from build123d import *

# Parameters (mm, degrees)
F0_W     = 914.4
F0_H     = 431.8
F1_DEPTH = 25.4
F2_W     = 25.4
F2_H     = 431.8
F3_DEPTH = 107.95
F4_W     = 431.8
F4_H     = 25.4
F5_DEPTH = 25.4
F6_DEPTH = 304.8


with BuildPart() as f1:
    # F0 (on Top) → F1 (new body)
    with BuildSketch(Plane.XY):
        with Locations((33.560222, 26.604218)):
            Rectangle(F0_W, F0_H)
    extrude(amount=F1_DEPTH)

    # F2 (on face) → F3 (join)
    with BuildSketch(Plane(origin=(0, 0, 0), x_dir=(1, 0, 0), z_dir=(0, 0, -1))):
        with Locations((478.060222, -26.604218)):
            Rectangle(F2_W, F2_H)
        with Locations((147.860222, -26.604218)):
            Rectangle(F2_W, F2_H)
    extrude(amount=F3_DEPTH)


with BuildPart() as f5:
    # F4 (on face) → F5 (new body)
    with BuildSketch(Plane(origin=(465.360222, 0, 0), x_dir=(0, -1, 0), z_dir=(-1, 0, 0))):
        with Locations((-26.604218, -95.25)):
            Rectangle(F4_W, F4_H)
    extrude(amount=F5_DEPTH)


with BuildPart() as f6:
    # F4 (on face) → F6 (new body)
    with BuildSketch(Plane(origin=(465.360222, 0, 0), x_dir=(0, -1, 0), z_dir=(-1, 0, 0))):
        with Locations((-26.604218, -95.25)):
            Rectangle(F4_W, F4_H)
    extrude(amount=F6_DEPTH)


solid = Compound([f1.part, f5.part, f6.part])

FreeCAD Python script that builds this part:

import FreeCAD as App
import Part
import Sketcher
Q = App.Units.Quantity


def add_polygon(sketch, points):
    """Adds a closed chain of lines whose ends are joined by coincident constraints."""
    first, n = sketch.GeometryCount, len(points)
    for a, b in zip(points, points[1:] + points[:1]):
        sketch.addGeometry(Part.LineSegment(App.Vector(*a, 0), App.Vector(*b, 0)), False)
    for i in range(n):
        sketch.addConstraint(Sketcher.Constraint("Coincident", first + i, 2, first + (i + 1) % n, 1))

doc = App.newDocument("Part")
body = doc.addObject("PartDesign::Body", "Body")

sketch1 = body.newObject("Sketcher::SketchObject", "Sketch")
sketch1.AttachmentSupport = (doc.getObject("XY_Plane"), [""])
sketch1.MapMode = "FlatFace"
add_polygon(sketch1, [(-423.639778, 242.504218), (-423.639778, -189.295782), (490.760222, -189.295782), (490.760222, 242.504218)])
sketch1.addConstraint(Sketcher.Constraint("Vertical", 0))
sketch1.addConstraint(Sketcher.Constraint("Horizontal", 1))
sketch1.addConstraint(Sketcher.Constraint("Vertical", 2))
sketch1.addConstraint(Sketcher.Constraint("Horizontal", 3))
sketch1.addConstraint(Sketcher.Constraint("DistanceX", 1, 1, 1, 2, Q("36 in")))
sketch1.addConstraint(Sketcher.Constraint("DistanceY", 0, 2, 0, 1, Q("17 in")))
sketch1.addConstraint(Sketcher.Constraint("DistanceX", 0, 2, -1, 1, 423.639778))
sketch1.addConstraint(Sketcher.Constraint("DistanceY", 0, 2, -1, 1, 189.295782))
pad1 = body.newObject("PartDesign::Pad", "Pad")
pad1.Profile = sketch1
pad1.Length = Q("1 in")

sketch2 = body.newObject("Sketcher::SketchObject", "Sketch001")
sketch2.AttachmentSupport = (doc.getObject("XY_Plane"), [""])
sketch2.MapMode = "FlatFace"
add_polygon(sketch2, [(465.360222, -189.295782), (465.360222, 242.504218), (490.760222, 242.504218), (490.760222, -189.295782)])
add_polygon(sketch2, [(135.160222, -189.295782), (135.160222, 242.504218), (160.560222, 242.504218), (160.560222, -189.295782)])
sketch2.addConstraint(Sketcher.Constraint("Vertical", 0))
sketch2.addConstraint(Sketcher.Constraint("Horizontal", 1))
sketch2.addConstraint(Sketcher.Constraint("Vertical", 2))
sketch2.addConstraint(Sketcher.Constraint("Horizontal", 3))
sketch2.addConstraint(Sketcher.Constraint("Vertical", 4))
sketch2.addConstraint(Sketcher.Constraint("Horizontal", 5))
sketch2.addConstraint(Sketcher.Constraint("Vertical", 6))
sketch2.addConstraint(Sketcher.Constraint("Horizontal", 7))
sketch2.addConstraint(Sketcher.Constraint("Horizontal", 1, 2, 4, 2))
sketch2.addConstraint(Sketcher.Constraint("Horizontal", 3, 2, 6, 2))
sketch2.addConstraint(Sketcher.Constraint("Equal", 3, 5))
sketch2.addConstraint(Sketcher.Constraint("DistanceX", 1, 1, 1, 2, Q("1 in")))
sketch2.addConstraint(Sketcher.Constraint("DistanceY", 0, 1, 0, 2, Q("17 in")))
sketch2.addConstraint(Sketcher.Constraint("DistanceX", 4, 2, 0, 2, Q("13 in")))
sketch2.addConstraint(Sketcher.Constraint("DistanceX", -1, 1, 0, 2, 465.360222))
sketch2.addConstraint(Sketcher.Constraint("DistanceY", -1, 1, 0, 2, 242.504218))
pad2 = body.newObject("PartDesign::Pad", "Pad001")
pad2.Profile = sketch2
pad2.Length = Q("4.25 in")
pad2.Reversed = True
body2 = doc.addObject("PartDesign::Body", "Body001")

sketch3 = body2.newObject("Sketcher::SketchObject", "Sketch002")
sketch3.AttachmentSupport = (doc.getObject("YZ_Plane001"), [""])
sketch3.MapMode = "FlatFace"
sketch3.AttachmentOffset = App.Placement(App.Vector(0, 0, 465.360222), App.Rotation())
add_polygon(sketch3, [(242.504218, -82.55), (242.504218, -107.95), (-189.295782, -107.95), (-189.295782, -82.55)])
sketch3.addConstraint(Sketcher.Constraint("Vertical", 0))
sketch3.addConstraint(Sketcher.Constraint("Horizontal", 1))
sketch3.addConstraint(Sketcher.Constraint("Vertical", 2))
sketch3.addConstraint(Sketcher.Constraint("Horizontal", 3))
sketch3.addConstraint(Sketcher.Constraint("DistanceX", 1, 2, 1, 1, Q("17 in")))
sketch3.addConstraint(Sketcher.Constraint("DistanceY", 0, 2, 0, 1, Q("1 in")))
sketch3.addConstraint(Sketcher.Constraint("DistanceY", 0, 2, -1, 1, Q("4.25 in")))
sketch3.addConstraint(Sketcher.Constraint("DistanceX", -1, 1, 0, 2, 242.504218))
pad3 = body2.newObject("PartDesign::Pad", "Pad002")
pad3.Profile = sketch3
pad3.Length = Q("1 in")
pad3.Reversed = True
body3 = doc.addObject("PartDesign::Body", "Body002")

sketch4 = body3.newObject("Sketcher::SketchObject", "Sketch003")
sketch4.AttachmentSupport = (doc.getObject("YZ_Plane002"), [""])
sketch4.MapMode = "FlatFace"
sketch4.AttachmentOffset = App.Placement(App.Vector(0, 0, 465.360222), App.Rotation())
add_polygon(sketch4, [(242.504218, -82.55), (242.504218, -107.95), (-189.295782, -107.95), (-189.295782, -82.55)])
sketch4.addConstraint(Sketcher.Constraint("Vertical", 0))
sketch4.addConstraint(Sketcher.Constraint("Horizontal", 1))
sketch4.addConstraint(Sketcher.Constraint("Vertical", 2))
sketch4.addConstraint(Sketcher.Constraint("Horizontal", 3))
sketch4.addConstraint(Sketcher.Constraint("DistanceX", 1, 2, 1, 1, Q("17 in")))
sketch4.addConstraint(Sketcher.Constraint("DistanceY", 0, 2, 0, 1, Q("1 in")))
sketch4.addConstraint(Sketcher.Constraint("DistanceY", 0, 2, -1, 1, Q("4.25 in")))
sketch4.addConstraint(Sketcher.Constraint("DistanceX", -1, 1, 0, 2, 242.504218))
pad4 = body3.newObject("PartDesign::Pad", "Pad003")
pad4.Profile = sketch4
pad4.Length = Q("12 in")
pad4.Reversed = True

doc.recompute()
